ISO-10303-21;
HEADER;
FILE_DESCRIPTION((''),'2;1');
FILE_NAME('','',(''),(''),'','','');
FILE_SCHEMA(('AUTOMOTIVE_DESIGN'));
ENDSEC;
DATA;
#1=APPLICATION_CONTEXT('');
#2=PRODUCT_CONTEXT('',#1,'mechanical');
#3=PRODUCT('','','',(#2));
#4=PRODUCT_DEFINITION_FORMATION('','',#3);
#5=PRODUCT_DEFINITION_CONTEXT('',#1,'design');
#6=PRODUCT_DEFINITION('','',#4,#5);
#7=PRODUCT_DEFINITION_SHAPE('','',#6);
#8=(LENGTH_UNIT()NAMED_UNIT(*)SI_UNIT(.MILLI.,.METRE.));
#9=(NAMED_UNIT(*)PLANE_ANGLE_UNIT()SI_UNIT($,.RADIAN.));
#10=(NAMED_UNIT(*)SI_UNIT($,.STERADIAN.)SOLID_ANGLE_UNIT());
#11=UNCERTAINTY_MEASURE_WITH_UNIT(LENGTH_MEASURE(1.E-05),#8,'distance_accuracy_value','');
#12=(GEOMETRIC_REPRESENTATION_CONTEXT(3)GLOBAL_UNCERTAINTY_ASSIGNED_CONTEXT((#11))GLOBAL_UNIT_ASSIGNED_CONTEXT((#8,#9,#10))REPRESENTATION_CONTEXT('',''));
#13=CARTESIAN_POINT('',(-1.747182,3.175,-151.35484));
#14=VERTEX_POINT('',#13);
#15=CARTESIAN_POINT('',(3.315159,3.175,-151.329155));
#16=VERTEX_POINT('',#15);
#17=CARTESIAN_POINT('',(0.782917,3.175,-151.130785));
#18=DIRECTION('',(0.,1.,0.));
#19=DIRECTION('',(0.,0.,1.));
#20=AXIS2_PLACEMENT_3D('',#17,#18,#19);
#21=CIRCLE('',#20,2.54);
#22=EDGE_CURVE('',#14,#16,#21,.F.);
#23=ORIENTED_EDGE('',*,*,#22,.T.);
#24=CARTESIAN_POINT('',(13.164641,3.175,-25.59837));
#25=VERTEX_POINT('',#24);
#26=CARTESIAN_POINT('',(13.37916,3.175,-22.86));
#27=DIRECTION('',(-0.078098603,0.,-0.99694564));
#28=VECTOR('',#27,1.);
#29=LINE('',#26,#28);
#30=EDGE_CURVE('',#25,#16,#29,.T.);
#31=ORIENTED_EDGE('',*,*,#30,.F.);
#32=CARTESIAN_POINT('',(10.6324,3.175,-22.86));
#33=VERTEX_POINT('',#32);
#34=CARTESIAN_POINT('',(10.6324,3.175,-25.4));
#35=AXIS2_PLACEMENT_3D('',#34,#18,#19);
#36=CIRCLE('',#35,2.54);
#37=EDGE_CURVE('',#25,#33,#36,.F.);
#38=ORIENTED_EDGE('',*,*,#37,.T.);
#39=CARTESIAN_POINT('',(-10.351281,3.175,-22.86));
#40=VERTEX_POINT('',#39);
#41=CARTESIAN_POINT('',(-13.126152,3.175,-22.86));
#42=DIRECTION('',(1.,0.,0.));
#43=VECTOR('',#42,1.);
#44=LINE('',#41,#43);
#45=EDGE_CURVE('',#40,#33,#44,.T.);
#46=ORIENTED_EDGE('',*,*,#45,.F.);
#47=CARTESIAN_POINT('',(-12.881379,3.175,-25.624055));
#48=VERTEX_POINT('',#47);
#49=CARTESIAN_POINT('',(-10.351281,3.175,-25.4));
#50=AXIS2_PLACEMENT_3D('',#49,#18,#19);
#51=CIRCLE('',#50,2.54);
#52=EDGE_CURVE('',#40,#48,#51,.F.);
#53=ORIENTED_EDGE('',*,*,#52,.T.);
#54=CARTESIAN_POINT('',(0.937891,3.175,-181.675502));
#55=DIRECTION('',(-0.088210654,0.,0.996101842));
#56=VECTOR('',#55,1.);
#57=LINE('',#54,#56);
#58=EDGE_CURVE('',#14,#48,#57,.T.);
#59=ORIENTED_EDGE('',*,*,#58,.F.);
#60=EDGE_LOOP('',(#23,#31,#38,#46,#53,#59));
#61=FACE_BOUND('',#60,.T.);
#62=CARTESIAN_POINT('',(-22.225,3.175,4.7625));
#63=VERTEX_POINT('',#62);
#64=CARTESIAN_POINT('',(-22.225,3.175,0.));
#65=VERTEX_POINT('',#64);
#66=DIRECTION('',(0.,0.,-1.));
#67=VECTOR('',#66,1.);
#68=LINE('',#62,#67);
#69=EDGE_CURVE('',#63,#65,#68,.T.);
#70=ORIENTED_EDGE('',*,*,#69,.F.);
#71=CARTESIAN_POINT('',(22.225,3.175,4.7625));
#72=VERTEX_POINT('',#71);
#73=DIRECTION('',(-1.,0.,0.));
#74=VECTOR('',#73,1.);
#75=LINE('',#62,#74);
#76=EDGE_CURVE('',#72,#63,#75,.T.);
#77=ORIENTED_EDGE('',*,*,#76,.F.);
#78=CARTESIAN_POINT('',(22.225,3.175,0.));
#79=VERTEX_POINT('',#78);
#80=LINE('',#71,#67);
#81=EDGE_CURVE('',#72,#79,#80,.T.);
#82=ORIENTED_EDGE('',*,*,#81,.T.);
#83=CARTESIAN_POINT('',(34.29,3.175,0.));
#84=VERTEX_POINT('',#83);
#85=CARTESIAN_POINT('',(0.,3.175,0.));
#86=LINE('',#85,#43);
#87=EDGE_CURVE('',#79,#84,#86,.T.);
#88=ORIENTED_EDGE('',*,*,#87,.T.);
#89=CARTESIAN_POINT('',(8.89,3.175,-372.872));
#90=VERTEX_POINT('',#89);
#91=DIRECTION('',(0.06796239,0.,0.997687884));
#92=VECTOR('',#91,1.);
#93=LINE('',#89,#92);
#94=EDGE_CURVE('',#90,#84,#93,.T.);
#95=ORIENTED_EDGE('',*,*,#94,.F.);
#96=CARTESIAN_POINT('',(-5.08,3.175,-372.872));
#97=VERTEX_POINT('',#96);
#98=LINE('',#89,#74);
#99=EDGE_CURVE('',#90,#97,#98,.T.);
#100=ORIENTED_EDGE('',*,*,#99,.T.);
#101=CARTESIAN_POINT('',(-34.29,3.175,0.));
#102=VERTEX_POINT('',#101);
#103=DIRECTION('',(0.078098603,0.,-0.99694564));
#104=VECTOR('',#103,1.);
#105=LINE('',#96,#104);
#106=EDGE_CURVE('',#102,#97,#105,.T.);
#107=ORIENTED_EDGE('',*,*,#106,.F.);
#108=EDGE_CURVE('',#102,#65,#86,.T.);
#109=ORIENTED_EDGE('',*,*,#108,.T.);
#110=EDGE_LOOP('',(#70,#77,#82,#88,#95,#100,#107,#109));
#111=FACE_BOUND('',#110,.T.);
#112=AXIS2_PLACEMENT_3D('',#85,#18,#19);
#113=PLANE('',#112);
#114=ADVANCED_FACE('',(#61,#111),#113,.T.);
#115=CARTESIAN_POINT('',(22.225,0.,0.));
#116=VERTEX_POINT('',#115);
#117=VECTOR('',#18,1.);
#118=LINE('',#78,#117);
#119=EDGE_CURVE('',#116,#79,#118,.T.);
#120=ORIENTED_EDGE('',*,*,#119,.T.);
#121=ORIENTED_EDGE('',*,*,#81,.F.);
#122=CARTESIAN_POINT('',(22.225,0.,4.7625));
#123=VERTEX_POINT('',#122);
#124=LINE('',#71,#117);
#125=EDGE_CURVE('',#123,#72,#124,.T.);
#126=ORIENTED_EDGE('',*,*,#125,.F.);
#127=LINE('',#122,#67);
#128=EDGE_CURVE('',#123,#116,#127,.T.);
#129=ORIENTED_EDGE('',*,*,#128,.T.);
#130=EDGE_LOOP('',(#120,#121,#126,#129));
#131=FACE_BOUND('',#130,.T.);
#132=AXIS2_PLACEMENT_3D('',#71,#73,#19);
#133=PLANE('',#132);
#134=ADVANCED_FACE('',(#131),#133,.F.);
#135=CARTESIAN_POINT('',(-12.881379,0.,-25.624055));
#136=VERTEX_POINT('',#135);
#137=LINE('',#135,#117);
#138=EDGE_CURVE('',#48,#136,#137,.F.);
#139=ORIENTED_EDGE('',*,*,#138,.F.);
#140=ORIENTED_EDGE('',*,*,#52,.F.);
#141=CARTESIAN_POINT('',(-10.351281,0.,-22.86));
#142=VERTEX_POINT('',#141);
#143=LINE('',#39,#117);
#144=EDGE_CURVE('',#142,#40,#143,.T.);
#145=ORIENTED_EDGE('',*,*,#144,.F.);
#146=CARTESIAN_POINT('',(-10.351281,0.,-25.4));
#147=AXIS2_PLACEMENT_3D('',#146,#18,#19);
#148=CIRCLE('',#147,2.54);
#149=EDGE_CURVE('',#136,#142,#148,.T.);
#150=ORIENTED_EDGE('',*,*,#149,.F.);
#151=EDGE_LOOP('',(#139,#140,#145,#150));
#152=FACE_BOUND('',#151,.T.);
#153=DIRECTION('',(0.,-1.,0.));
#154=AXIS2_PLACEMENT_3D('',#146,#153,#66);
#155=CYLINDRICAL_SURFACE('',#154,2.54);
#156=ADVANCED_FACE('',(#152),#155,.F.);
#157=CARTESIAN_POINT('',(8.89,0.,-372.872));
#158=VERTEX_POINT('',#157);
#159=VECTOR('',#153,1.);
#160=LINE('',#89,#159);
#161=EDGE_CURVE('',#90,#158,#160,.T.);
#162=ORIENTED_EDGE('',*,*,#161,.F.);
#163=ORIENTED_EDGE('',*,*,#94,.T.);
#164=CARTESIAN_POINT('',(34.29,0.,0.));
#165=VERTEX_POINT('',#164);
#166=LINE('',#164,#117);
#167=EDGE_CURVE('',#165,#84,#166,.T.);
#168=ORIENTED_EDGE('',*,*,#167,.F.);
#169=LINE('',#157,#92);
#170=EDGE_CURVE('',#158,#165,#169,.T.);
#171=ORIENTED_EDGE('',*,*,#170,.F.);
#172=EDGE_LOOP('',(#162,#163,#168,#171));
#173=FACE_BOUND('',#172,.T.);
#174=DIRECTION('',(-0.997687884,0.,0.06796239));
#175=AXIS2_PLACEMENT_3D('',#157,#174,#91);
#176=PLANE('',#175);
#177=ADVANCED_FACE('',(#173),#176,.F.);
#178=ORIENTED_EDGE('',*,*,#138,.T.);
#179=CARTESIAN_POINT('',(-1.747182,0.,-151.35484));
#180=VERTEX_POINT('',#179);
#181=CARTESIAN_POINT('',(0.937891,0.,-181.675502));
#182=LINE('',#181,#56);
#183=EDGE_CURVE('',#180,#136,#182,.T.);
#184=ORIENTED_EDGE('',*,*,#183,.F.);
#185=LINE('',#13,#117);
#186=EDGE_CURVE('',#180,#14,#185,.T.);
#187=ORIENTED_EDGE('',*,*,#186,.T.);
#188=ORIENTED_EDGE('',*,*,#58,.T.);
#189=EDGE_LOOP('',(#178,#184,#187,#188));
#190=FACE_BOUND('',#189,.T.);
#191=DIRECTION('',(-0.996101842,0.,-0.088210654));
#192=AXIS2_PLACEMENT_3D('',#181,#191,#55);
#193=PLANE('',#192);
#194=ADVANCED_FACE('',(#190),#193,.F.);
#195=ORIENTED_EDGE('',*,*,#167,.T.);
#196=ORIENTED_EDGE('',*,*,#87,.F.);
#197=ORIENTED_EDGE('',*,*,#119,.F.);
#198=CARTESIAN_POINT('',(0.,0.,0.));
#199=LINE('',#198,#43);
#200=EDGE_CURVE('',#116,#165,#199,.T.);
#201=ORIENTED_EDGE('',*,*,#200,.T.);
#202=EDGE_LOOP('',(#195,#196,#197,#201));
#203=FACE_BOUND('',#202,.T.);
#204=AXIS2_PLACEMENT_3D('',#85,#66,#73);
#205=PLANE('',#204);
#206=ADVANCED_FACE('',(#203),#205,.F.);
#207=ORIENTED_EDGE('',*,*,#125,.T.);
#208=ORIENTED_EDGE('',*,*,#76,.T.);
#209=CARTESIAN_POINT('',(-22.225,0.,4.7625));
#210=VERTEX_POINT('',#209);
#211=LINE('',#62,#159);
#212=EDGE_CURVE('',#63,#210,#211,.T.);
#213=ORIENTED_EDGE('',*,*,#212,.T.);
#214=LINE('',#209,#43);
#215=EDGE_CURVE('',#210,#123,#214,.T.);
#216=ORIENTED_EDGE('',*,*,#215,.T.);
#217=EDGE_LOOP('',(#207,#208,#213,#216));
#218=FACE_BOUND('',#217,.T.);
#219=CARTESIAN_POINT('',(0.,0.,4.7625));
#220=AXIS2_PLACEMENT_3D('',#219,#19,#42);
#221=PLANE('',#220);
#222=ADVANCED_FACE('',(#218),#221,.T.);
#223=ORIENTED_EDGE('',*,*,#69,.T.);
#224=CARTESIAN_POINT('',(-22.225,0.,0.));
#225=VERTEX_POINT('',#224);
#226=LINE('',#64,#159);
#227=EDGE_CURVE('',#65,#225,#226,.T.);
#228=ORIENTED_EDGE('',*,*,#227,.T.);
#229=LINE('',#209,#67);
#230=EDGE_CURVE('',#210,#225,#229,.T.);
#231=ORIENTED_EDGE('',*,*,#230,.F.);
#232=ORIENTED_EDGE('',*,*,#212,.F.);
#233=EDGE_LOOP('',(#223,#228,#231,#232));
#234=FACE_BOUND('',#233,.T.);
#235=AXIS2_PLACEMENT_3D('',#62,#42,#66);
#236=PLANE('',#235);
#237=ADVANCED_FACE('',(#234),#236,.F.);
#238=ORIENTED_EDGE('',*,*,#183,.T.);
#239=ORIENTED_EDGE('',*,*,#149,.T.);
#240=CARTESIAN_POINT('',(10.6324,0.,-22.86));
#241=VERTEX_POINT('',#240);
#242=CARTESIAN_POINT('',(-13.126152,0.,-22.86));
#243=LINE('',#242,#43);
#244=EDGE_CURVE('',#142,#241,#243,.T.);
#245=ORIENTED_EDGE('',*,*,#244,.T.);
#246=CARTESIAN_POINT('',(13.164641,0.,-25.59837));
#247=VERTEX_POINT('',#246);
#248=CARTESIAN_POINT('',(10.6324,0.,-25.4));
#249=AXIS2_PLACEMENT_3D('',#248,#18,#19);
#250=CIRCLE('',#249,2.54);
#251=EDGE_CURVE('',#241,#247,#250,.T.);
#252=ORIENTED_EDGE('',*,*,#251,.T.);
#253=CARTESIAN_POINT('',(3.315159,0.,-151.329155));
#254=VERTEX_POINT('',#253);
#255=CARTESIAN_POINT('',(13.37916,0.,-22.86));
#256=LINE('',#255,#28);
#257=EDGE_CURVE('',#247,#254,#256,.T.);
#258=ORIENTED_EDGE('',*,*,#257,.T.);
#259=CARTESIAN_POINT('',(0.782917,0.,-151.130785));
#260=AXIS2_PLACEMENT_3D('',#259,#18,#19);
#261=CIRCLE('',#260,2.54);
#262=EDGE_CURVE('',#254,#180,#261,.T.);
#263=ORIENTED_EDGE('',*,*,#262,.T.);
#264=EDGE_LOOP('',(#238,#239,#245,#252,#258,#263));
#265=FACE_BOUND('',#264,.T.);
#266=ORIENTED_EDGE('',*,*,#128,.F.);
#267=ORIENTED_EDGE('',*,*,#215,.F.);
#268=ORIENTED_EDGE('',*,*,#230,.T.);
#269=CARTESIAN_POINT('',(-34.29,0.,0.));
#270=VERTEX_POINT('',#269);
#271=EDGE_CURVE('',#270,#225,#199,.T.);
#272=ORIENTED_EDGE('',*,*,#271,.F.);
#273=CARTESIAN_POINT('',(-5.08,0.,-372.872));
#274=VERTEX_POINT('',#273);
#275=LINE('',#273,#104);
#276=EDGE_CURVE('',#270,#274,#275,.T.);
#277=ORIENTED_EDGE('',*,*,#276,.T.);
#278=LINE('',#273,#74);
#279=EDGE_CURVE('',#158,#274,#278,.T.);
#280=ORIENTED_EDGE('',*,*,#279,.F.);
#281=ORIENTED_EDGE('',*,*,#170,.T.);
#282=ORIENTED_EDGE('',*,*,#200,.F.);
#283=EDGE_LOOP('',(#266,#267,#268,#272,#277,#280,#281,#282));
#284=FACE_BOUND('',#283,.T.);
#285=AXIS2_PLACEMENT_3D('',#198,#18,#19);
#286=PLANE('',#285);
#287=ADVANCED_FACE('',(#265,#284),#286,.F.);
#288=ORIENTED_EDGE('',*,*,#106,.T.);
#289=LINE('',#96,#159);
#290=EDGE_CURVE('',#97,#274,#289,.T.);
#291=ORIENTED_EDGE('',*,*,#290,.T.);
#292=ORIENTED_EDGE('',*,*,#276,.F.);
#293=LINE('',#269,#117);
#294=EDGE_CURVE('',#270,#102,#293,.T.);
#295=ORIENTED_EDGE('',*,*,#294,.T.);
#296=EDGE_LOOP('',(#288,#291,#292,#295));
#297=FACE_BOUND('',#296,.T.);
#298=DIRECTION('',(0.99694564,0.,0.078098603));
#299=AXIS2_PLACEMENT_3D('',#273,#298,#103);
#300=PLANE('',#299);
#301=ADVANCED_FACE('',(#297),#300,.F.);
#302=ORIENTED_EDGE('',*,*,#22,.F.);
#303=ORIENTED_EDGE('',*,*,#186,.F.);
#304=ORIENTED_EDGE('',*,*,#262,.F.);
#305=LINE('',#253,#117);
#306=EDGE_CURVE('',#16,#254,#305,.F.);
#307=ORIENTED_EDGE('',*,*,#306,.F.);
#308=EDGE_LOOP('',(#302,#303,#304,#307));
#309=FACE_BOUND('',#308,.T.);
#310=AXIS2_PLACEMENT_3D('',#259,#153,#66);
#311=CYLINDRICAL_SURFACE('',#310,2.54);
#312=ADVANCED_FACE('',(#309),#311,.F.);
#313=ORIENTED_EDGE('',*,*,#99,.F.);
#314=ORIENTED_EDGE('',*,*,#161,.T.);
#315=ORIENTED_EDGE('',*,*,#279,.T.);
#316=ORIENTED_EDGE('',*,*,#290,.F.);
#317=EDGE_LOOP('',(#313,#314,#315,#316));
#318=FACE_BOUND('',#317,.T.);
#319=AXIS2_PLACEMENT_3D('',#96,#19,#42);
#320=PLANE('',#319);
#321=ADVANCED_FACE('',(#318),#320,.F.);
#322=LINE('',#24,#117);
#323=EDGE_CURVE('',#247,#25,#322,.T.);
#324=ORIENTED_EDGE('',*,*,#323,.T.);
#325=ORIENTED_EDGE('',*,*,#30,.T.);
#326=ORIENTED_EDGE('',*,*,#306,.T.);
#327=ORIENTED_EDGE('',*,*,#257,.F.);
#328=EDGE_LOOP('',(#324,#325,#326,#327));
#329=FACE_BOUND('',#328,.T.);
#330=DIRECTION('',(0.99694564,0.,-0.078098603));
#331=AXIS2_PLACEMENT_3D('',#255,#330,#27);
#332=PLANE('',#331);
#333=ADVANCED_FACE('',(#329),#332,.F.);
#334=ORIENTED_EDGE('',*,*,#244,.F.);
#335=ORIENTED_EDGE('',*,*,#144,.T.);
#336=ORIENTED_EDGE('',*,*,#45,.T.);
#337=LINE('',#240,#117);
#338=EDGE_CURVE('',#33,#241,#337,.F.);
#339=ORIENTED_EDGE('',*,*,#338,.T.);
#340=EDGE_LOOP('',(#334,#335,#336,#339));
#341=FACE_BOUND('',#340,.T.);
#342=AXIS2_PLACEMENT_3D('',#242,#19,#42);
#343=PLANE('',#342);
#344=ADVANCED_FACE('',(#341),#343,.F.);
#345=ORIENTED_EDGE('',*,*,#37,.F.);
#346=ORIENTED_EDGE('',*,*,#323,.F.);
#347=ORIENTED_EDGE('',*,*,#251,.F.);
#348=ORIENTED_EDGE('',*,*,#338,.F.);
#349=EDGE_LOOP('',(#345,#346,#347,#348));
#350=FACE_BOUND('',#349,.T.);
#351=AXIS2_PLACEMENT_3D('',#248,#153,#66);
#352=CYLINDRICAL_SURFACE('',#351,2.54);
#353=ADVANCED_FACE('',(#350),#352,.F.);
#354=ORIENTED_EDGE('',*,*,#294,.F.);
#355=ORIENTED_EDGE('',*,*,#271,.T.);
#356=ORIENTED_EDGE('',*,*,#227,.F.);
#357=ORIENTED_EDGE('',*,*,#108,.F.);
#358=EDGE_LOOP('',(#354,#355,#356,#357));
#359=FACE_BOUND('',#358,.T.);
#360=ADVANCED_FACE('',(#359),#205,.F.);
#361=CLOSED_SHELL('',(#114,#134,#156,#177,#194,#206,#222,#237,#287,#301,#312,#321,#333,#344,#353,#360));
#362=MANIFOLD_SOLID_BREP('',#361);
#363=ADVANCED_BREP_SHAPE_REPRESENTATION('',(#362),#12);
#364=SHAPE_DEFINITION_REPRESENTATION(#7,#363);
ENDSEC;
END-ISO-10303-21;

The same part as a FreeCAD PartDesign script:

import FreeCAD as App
import Part
import Sketcher

V = App.Vector
Q = App.Units.Quantity


def edges_at(feature, points):
    """Names of the edges that pass closest to the given points."""
    edges = feature.Shape.Edges
    near = lambda p: min(range(len(edges)), key=lambda i: edges[i].distToShape(Part.Vertex(*p))[0])
    return sorted({f"Edge{near(p) + 1}" for p in points})

doc = App.newDocument("Part")
body = doc.addObject("PartDesign::Body", "Body")

# Sketch on XZ plane
sketch1 = body.newObject("Sketcher::SketchObject", "Sketch")
sketch1.AttachmentSupport = (doc.getObject("XZ_Plane"), [""])
sketch1.MapMode = "FlatFace"
sketch1.addGeometry([
    Part.LineSegment(V(-38.1, 0, 0), V(38.1, 0, 0)),
    Part.LineSegment(V(38.1, 0, 0), V(8.89, -372.872, 0)),
    Part.LineSegment(V(8.89, -372.872, 0), V(-5.08, -372.872, 0)),
    Part.LineSegment(V(-5.08, -372.872, 0), V(-38.1, 0, 0)),
], False)
sketch1.addConstraint([
    Sketcher.Constraint("Coincident", 0, 2, 1, 1),
    Sketcher.Constraint("Coincident", 1, 2, 2, 1),
    Sketcher.Constraint("Coincident", 2, 2, 3, 1),
    Sketcher.Constraint("Coincident", 3, 2, 0, 1),
    Sketcher.Constraint("Horizontal", 0),
    Sketcher.Constraint("Horizontal", 2),
    Sketcher.Constraint("Symmetric", 0, 2, 3, 2, -1, 1),
    Sketcher.Constraint("DistanceX", 0, 1, 0, 2, Q("3 in")),
    Sketcher.Constraint("DistanceX", 2, 2, 2, 1, Q("0.55 in")),
    Sketcher.Constraint("DistanceX", 2, 2, -1, 1, Q("0.2 in")),
    Sketcher.Constraint("DistanceY", 1, 2, -1, 1, Q("14.68 in")),
])
pad1 = body.newObject("PartDesign::Pad", "Pad")
pad1.Profile = sketch1
pad1.Length = Q("0.125 in")
pad1.Reversed = True

# Sketch on XZ plane
sketch2 = body.newObject("Sketcher::SketchObject", "Sketch001")
sketch2.AttachmentSupport = (doc.getObject("XZ_Plane"), [""])
sketch2.MapMode = "FlatFace"
sketch2.AttachmentOffset = App.Placement(V(0, 0, -0.125 * 25.4), App.Rotation())
sketch2.addGeometry([
    Part.LineSegment(V(13.37916, -22.86, 0), V(0.937891, -181.675502, 0)),
    Part.LineSegment(V(0.937891, -181.675502, 0), V(-13.126152, -22.86, 0)),
    Part.LineSegment(V(-13.126152, -22.86, 0), V(13.37916, -22.86, 0)),
], False)
sketch2.addConstraint([
    Sketcher.Constraint("Coincident", 0, 2, 1, 1),
    Sketcher.Constraint("Coincident", 1, 2, 2, 1),
    Sketcher.Constraint("Coincident", 2, 2, 0, 1),
    Sketcher.Constraint("Horizontal", 2),
    Sketcher.Constraint("DistanceY", 1, 2, -1, 1, Q("0.9 in")),
    Sketcher.Constraint("Distance", 0, 159.302068),
    Sketcher.Constraint("DistanceX", 2, 1, 2, 2, 26.505312),
    Sketcher.Constraint("DistanceX", -1, 1, 0, 2, 0.937891),
    Sketcher.Constraint("DistanceX", -1, 1, 2, 2, 13.37916),
])
pocket1 = body.newObject("PartDesign::Pocket", "Pocket")
pocket1.Profile = sketch2
pocket1.Length = Q("0.125 in")
pocket1.Reversed = True
doc.recompute()

fillet = body.newObject("PartDesign::Fillet", "Fillet")
fillet.Base = (pocket1, edges_at(pocket1, [(-13.126, 1.587, -22.86), (0.938, 1.587, -181.676), (13.379, 1.587, -22.86)]))
fillet.Radius = Q("0.1 in")

# Sketch on XY plane
sketch3 = body.newObject("Sketcher::SketchObject", "Sketch002")
sketch3.AttachmentSupport = (doc.getObject("XY_Plane"), [""])
sketch3.MapMode = "FlatFace"
sketch3.addGeometry([
    Part.LineSegment(V(-22.225, 3.175, 0), V(-22.225, 0, 0)),
    Part.LineSegment(V(-22.225, 0, 0), V(22.225, 0, 0)),
    Part.LineSegment(V(22.225, 0, 0), V(22.225, 3.175, 0)),
    Part.LineSegment(V(22.225, 3.175, 0), V(-22.225, 3.175, 0)),
], False)
sketch3.addConstraint([
    Sketcher.Constraint("Coincident", 0, 2, 1, 1),
    Sketcher.Constraint("Coincident", 1, 2, 2, 1),
    Sketcher.Constraint("Coincident", 2, 2, 3, 1),
    Sketcher.Constraint("Coincident", 3, 2, 0, 1),
    Sketcher.Constraint("Vertical", 0),
    Sketcher.Constraint("Horizontal", 1),
    Sketcher.Constraint("Vertical", 2),
    Sketcher.Constraint("Horizontal", 3),
    Sketcher.Constraint("Symmetric", 0, 2, 1, 2, -1, 1),
    Sketcher.Constraint("DistanceX", 1, 1, 1, 2, Q("1.75 in")),
    Sketcher.Constraint("DistanceY", 0, 2, 0, 1, Q("0.125 in")),
])
pad2 = body.newObject("PartDesign::Pad", "Pad001")
pad2.Profile = sketch3
pad2.Length = Q("0.1875 in")

# Sketch on XZ plane
sketch4 = body.newObject("Sketcher::SketchObject", "Sketch003")
sketch4.AttachmentSupport = (doc.getObject("XZ_Plane"), [""])
sketch4.MapMode = "FlatFace"
sketch4.AttachmentOffset = App.Placement(V(0, 0, -0.125 * 25.4), App.Rotation())
sketch4.addGeometry([
    Part.LineSegment(V(-34.29, 0, 0), V(-5.08, -372.872, 0)),  # 0
    Part.LineSegment(V(-5.08, -372.872, 0), V(-38.1, 0, 0)),  # 1
    Part.LineSegment(V(-38.1, 0, 0), V(-34.29, 0, 0)),  # 2
    Part.LineSegment(V(38.1, 0, 0), V(8.89, -372.872, 0)),  # 3
    Part.LineSegment(V(8.89, -372.872, 0), V(34.29, 0, 0)),  # 4
    Part.LineSegment(V(34.29, 0, 0), V(38.1, 0, 0)),  # 5
], False)
sketch4.addConstraint([
    Sketcher.Constraint("Coincident", 0, 2, 1, 1),
    Sketcher.Constraint("Coincident", 1, 2, 2, 1),
    Sketcher.Constraint("Coincident", 2, 2, 0, 1),
    Sketcher.Constraint("Coincident", 3, 2, 4, 1),
    Sketcher.Constraint("Coincident", 4, 2, 5, 1),
    Sketcher.Constraint("Coincident", 5, 2, 3, 1),
    Sketcher.Constraint("Horizontal", 2),
    Sketcher.Constraint("Horizontal", 5),
    Sketcher.Constraint("Symmetric", 2, 2, 4, 2, -1, 1),
    Sketcher.Constraint("Symmetric", 1, 2, 5, 2, -2),
    Sketcher.Constraint("Horizontal", 0, 2, 3, 2),
    Sketcher.Constraint("Equal", 0, 3),
    Sketcher.Constraint("DistanceX", 3, 2, 4, 2, Q("1 in")),
    Sketcher.Constraint("DistanceX", 1, 2, 5, 2, Q("3 in")),
    Sketcher.Constraint("DistanceX", 2, 1, 2, 2, Q("0.15 in")),
    Sketcher.Constraint("DistanceY", 0, 2, -1, 1, Q("14.68 in")),
])
pocket2 = body.newObject("PartDesign::Pocket", "Pocket001")
pocket2.Profile = sketch4
pocket2.Type = "ThroughAll"
pocket2.Reversed = True

doc.recompute()
